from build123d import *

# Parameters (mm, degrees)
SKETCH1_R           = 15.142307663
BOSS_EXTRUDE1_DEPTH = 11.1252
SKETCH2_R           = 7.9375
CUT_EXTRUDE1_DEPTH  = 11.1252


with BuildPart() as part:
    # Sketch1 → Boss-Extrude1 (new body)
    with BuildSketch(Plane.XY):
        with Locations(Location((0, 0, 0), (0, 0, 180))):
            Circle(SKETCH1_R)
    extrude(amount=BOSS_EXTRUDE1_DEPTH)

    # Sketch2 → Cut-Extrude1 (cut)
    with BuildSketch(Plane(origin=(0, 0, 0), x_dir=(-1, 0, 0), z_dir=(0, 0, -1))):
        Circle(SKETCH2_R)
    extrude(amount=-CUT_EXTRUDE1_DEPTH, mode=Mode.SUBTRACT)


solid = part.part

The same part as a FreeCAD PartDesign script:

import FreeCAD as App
import Part
import Sketcher

V = App.Vector
Q = App.Units.Quantity

doc = App.newDocument("Part")
body = doc.addObject("PartDesign::Body", "Body")

sketch1 = body.newObject("Sketcher::SketchObject", "Sketch")
sketch1.AttachmentSupport = (doc.getObject("XY_Plane"), [""])
sketch1.MapMode = "FlatFace"
sketch1.addGeometry(Part.Circle(V(0, 0, 0), V(0, 0, 1), 15), False)
sketch1.addConstraint(Sketcher.Constraint("Coincident", 0, 3, -1, 1))
sketch1.addConstraint(Sketcher.Constraint("Diameter", 0, 30.284615))
pad1 = body.newObject("PartDesign::Pad", "Pad")
pad1.Profile = sketch1
pad1.Length = Q("0.438 in")

sketch2 = body.newObject("Sketcher::SketchObject", "Sketch001")
sketch2.AttachmentSupport = (doc.getObject("XY_Plane"), [""])
sketch2.MapMode = "FlatFace"
sketch2.addGeometry(Part.Circle(V(0, 0, 0), V(0, 0, 1), 8), False)
sketch2.addConstraint(Sketcher.Constraint("Coincident", 0, 3, -1, 1))
sketch2.addConstraint(Sketcher.Constraint("Diameter", 0, Q("0.625 in")))
pocket1 = body.newObject("PartDesign::Pocket", "Pocket")
pocket1.Profile = sketch2
pocket1.Length = Q("0.438 in")
pocket1.Reversed = True

doc.recompute()
